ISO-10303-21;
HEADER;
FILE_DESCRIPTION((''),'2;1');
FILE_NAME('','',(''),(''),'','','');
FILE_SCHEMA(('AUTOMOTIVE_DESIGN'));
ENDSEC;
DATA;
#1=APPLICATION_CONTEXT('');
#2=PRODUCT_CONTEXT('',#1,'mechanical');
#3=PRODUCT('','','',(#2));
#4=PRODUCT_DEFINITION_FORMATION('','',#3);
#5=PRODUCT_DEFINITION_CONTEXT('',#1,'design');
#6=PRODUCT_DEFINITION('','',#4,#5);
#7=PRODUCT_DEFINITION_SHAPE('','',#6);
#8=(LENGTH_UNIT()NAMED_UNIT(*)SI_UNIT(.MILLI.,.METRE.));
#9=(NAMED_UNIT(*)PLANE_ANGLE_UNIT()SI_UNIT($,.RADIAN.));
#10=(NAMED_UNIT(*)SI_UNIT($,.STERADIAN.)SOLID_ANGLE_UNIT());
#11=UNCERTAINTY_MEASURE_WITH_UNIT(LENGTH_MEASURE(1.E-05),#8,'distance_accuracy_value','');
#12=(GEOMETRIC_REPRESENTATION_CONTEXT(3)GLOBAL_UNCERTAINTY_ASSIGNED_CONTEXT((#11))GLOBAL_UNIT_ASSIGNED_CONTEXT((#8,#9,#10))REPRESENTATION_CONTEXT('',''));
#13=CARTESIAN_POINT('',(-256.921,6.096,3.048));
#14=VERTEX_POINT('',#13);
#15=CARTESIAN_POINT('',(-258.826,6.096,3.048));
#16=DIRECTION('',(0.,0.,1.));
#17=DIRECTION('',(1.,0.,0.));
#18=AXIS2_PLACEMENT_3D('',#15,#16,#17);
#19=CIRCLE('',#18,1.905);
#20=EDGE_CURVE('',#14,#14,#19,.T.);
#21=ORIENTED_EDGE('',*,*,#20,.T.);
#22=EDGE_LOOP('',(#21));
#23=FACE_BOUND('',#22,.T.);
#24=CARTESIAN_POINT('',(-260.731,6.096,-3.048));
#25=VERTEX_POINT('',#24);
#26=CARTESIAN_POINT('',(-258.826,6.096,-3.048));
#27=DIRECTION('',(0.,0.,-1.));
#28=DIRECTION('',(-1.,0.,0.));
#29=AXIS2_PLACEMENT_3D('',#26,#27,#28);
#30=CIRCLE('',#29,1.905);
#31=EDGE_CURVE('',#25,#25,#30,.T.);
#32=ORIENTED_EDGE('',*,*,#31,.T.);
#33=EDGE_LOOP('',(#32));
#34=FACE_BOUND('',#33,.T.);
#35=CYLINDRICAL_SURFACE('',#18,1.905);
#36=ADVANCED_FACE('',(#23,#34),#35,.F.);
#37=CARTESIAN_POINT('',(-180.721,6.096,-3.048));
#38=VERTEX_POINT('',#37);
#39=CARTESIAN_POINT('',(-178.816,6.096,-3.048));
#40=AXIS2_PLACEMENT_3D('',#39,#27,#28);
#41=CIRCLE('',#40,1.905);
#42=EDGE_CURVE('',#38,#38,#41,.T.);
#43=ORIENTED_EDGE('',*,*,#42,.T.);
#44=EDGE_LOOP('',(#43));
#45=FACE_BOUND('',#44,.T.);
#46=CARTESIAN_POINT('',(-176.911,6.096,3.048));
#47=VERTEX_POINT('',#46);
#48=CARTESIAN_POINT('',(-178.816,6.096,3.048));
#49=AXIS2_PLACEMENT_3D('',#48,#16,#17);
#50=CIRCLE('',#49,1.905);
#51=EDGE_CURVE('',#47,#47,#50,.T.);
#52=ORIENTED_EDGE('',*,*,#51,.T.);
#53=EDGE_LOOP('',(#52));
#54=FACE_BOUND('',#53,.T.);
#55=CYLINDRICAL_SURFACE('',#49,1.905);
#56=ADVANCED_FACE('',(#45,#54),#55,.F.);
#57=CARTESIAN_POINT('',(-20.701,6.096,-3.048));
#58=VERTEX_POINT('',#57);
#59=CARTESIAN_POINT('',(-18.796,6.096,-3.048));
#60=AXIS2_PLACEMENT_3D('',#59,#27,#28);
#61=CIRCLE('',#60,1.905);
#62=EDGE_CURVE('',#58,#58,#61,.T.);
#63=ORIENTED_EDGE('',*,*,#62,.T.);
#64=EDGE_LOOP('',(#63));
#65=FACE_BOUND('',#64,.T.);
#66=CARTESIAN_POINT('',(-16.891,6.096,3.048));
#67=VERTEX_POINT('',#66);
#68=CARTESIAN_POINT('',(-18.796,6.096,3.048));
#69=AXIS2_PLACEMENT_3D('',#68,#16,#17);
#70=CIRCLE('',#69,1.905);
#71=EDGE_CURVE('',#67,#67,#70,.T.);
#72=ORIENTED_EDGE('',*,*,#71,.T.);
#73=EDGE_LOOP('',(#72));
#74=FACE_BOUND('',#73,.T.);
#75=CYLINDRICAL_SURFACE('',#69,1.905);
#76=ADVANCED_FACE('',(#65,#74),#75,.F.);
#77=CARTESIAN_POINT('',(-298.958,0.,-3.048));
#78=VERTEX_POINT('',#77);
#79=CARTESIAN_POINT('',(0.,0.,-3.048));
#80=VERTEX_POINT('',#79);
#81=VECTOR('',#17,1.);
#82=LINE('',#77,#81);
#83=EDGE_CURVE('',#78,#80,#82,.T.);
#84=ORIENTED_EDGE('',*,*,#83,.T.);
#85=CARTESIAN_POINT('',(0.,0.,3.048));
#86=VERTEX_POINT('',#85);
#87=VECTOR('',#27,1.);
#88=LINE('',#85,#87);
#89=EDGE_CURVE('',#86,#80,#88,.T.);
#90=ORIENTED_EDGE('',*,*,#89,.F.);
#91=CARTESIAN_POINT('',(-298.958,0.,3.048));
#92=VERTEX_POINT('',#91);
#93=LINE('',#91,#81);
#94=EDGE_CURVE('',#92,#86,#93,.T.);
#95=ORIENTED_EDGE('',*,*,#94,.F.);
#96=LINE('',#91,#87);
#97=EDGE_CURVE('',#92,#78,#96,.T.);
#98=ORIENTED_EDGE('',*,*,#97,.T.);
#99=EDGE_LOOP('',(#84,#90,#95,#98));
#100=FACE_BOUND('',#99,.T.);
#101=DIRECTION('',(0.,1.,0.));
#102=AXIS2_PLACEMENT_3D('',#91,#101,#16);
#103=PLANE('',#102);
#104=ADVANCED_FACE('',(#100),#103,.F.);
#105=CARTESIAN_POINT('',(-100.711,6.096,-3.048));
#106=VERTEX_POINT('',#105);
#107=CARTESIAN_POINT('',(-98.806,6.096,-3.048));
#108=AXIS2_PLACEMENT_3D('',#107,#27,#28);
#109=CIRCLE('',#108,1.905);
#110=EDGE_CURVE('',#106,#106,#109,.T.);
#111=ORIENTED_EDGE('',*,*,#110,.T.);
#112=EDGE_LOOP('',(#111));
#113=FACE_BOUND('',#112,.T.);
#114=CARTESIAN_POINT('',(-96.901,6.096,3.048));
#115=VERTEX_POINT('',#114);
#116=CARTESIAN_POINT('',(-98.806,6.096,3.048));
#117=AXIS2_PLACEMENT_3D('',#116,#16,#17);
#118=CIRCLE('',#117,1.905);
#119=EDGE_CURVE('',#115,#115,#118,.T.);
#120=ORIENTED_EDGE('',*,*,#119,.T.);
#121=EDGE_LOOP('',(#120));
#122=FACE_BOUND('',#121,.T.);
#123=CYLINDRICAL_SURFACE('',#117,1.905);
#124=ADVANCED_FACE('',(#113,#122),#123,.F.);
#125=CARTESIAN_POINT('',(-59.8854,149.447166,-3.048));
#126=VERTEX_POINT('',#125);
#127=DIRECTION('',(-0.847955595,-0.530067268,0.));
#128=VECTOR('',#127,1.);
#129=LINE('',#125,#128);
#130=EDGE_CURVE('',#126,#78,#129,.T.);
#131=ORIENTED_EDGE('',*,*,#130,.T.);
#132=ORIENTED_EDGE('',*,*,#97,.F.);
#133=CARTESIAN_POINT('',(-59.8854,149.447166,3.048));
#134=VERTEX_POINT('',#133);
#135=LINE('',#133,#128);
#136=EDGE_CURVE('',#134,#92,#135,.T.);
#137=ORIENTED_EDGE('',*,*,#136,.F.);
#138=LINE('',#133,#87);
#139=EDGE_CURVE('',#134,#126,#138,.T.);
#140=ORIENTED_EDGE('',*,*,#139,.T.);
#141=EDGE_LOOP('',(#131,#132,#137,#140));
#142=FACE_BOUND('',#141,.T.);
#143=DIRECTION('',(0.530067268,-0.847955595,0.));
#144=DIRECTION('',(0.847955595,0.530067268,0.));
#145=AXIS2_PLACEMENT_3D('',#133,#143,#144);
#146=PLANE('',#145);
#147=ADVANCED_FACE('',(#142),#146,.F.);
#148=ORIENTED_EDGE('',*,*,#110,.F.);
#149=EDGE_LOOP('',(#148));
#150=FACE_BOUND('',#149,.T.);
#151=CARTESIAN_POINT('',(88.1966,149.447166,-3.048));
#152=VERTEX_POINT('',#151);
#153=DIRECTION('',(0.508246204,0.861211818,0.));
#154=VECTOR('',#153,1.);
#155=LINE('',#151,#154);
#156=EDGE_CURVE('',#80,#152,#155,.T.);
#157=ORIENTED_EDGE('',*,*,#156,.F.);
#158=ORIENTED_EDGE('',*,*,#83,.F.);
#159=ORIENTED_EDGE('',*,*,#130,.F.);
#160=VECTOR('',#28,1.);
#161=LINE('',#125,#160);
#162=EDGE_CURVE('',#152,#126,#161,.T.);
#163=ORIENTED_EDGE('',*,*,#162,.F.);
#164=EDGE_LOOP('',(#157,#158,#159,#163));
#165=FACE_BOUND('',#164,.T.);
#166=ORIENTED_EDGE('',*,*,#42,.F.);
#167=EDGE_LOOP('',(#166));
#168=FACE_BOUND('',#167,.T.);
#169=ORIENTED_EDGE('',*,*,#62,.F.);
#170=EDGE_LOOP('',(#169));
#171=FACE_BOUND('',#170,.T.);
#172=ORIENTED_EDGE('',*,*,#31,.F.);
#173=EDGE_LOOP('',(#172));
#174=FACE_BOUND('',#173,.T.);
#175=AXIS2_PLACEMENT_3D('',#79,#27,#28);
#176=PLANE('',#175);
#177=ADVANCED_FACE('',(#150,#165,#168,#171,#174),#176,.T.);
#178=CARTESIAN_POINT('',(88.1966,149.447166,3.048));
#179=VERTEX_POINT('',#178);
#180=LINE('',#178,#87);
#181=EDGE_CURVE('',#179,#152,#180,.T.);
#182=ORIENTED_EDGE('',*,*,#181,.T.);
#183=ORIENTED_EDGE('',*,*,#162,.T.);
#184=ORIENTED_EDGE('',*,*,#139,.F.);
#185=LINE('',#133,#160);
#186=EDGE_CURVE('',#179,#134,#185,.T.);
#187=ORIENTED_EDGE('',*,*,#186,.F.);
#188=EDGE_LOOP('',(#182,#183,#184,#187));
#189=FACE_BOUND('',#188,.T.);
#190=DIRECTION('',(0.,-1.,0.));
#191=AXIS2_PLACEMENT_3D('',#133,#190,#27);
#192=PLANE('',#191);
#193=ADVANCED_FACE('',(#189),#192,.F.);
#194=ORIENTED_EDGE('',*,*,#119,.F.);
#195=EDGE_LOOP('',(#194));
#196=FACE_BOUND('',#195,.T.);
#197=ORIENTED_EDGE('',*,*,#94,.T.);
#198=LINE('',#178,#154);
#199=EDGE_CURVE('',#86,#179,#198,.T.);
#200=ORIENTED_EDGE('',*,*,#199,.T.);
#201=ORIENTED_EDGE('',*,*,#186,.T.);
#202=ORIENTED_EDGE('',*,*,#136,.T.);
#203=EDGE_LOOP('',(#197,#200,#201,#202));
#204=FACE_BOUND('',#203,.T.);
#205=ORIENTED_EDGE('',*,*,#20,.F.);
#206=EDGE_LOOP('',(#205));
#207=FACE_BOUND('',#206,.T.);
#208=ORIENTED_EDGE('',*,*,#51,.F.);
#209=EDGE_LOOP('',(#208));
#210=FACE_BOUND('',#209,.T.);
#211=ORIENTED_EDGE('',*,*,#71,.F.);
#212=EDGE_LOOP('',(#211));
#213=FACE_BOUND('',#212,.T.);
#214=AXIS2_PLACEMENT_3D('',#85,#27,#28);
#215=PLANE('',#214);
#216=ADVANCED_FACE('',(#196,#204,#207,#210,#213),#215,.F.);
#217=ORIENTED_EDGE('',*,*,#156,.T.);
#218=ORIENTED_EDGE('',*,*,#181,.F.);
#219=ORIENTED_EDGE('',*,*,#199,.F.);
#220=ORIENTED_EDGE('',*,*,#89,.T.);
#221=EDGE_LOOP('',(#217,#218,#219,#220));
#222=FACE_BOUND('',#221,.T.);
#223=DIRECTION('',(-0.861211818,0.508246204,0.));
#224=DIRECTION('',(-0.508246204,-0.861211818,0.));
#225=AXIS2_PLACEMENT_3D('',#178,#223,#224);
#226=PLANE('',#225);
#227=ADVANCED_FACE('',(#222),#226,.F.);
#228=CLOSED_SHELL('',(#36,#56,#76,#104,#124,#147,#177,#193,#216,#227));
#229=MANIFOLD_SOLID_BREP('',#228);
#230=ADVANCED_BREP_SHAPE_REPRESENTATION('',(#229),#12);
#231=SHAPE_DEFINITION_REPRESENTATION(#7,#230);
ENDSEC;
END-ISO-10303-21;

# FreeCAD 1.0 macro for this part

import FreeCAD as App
import Part
import Sketcher
Q = App.Units.Quantity

doc = App.newDocument("Part")
body = doc.addObject("PartDesign::Body", "Body")

# Sketch on XY plane
sketch1 = body.newObject("Sketcher::SketchObject", "Sketch")
sketch1.AttachmentSupport = (doc.getObject("XY_Plane"), [""])
sketch1.MapMode = "FlatFace"
sketch1.addGeometry([
    Part.LineSegment(App.Vector(-60, 149, 0), App.Vector(-299, 0, 0)),
    Part.LineSegment(App.Vector(-299, 0, 0), App.Vector(0, 0, 0)),
    Part.LineSegment(App.Vector(0, 0, 0), App.Vector(88, 149, 0)),
    Part.LineSegment(App.Vector(88, 149, 0), App.Vector(-60, 149, 0)),
], False)
sketch1.addConstraint([
    Sketcher.Constraint("Coincident", 0, 2, 1, 1),
    Sketcher.Constraint("Coincident", 1, 2, 2, 1),
    Sketcher.Constraint("Coincident", 2, 2, 3, 1),
    Sketcher.Constraint("Coincident", 3, 2, 0, 1),
    Sketcher.Constraint("Horizontal", 1),
    Sketcher.Constraint("Horizontal", 3),
    Sketcher.Constraint("Coincident", 1, 2, -1, 1),
    Sketcher.Constraint("Distance", 0, Q("11.1 in")),
    Sketcher.Constraint("DistanceX", 1, 1, 1, 2, Q("11.77 in")),
    Sketcher.Constraint("DistanceX", 3, 2, 3, 1, Q("5.83 in")),
    Sketcher.Constraint("Angle", 0, Q("-147.99 deg")),
])
pad1 = body.newObject("PartDesign::Pad", "Pad")
pad1.Profile = sketch1
pad1.Length = Q("0.24 in")
pad1.Midplane = True

# Sketch on XY plane
sketch2 = body.newObject("Sketcher::SketchObject", "Sketch001")
sketch2.AttachmentSupport = (doc.getObject("XY_Plane"), [""])
sketch2.MapMode = "FlatFace"
sketch2.AttachmentOffset = App.Placement(App.Vector(0, 0, 0.12 * 25.4), App.Rotation())
sketch2.addGeometry(Part.Circle(App.Vector(-258.8, 6.1, 0), App.Vector(0, 0, 1), 1.9), False)
sketch2.addConstraint([
    Sketcher.Constraint("Diameter", 0, Q("0.15 in")),
    Sketcher.Constraint("DistanceX", 0, 3, -1, 1, Q("10.19 in")),
    Sketcher.Constraint("DistanceY", -1, 1, 0, 3, Q("0.24 in")),
])
doc.recompute()
hole = body.newObject("PartDesign::Hole", "Hole")
hole.Profile = sketch2
hole.ThreadType = "None"
hole.Diameter = Q("0.15 in")
hole.DepthType = "Dimension"
hole.Depth = Q("0.6 in")
hole.DrillPoint = "Flat"
doc.recompute()

linearpattern = body.newObject("PartDesign::LinearPattern", "LinearPattern")
linearpattern.Originals = [hole]
linearpattern.Direction = (doc.getObject("X_Axis"), [""])
linearpattern.Mode = "offset"
linearpattern.Offset = Q("3.15 in")
linearpattern.Occurrences = 4
body.Tip = linearpattern

doc.recompute()
